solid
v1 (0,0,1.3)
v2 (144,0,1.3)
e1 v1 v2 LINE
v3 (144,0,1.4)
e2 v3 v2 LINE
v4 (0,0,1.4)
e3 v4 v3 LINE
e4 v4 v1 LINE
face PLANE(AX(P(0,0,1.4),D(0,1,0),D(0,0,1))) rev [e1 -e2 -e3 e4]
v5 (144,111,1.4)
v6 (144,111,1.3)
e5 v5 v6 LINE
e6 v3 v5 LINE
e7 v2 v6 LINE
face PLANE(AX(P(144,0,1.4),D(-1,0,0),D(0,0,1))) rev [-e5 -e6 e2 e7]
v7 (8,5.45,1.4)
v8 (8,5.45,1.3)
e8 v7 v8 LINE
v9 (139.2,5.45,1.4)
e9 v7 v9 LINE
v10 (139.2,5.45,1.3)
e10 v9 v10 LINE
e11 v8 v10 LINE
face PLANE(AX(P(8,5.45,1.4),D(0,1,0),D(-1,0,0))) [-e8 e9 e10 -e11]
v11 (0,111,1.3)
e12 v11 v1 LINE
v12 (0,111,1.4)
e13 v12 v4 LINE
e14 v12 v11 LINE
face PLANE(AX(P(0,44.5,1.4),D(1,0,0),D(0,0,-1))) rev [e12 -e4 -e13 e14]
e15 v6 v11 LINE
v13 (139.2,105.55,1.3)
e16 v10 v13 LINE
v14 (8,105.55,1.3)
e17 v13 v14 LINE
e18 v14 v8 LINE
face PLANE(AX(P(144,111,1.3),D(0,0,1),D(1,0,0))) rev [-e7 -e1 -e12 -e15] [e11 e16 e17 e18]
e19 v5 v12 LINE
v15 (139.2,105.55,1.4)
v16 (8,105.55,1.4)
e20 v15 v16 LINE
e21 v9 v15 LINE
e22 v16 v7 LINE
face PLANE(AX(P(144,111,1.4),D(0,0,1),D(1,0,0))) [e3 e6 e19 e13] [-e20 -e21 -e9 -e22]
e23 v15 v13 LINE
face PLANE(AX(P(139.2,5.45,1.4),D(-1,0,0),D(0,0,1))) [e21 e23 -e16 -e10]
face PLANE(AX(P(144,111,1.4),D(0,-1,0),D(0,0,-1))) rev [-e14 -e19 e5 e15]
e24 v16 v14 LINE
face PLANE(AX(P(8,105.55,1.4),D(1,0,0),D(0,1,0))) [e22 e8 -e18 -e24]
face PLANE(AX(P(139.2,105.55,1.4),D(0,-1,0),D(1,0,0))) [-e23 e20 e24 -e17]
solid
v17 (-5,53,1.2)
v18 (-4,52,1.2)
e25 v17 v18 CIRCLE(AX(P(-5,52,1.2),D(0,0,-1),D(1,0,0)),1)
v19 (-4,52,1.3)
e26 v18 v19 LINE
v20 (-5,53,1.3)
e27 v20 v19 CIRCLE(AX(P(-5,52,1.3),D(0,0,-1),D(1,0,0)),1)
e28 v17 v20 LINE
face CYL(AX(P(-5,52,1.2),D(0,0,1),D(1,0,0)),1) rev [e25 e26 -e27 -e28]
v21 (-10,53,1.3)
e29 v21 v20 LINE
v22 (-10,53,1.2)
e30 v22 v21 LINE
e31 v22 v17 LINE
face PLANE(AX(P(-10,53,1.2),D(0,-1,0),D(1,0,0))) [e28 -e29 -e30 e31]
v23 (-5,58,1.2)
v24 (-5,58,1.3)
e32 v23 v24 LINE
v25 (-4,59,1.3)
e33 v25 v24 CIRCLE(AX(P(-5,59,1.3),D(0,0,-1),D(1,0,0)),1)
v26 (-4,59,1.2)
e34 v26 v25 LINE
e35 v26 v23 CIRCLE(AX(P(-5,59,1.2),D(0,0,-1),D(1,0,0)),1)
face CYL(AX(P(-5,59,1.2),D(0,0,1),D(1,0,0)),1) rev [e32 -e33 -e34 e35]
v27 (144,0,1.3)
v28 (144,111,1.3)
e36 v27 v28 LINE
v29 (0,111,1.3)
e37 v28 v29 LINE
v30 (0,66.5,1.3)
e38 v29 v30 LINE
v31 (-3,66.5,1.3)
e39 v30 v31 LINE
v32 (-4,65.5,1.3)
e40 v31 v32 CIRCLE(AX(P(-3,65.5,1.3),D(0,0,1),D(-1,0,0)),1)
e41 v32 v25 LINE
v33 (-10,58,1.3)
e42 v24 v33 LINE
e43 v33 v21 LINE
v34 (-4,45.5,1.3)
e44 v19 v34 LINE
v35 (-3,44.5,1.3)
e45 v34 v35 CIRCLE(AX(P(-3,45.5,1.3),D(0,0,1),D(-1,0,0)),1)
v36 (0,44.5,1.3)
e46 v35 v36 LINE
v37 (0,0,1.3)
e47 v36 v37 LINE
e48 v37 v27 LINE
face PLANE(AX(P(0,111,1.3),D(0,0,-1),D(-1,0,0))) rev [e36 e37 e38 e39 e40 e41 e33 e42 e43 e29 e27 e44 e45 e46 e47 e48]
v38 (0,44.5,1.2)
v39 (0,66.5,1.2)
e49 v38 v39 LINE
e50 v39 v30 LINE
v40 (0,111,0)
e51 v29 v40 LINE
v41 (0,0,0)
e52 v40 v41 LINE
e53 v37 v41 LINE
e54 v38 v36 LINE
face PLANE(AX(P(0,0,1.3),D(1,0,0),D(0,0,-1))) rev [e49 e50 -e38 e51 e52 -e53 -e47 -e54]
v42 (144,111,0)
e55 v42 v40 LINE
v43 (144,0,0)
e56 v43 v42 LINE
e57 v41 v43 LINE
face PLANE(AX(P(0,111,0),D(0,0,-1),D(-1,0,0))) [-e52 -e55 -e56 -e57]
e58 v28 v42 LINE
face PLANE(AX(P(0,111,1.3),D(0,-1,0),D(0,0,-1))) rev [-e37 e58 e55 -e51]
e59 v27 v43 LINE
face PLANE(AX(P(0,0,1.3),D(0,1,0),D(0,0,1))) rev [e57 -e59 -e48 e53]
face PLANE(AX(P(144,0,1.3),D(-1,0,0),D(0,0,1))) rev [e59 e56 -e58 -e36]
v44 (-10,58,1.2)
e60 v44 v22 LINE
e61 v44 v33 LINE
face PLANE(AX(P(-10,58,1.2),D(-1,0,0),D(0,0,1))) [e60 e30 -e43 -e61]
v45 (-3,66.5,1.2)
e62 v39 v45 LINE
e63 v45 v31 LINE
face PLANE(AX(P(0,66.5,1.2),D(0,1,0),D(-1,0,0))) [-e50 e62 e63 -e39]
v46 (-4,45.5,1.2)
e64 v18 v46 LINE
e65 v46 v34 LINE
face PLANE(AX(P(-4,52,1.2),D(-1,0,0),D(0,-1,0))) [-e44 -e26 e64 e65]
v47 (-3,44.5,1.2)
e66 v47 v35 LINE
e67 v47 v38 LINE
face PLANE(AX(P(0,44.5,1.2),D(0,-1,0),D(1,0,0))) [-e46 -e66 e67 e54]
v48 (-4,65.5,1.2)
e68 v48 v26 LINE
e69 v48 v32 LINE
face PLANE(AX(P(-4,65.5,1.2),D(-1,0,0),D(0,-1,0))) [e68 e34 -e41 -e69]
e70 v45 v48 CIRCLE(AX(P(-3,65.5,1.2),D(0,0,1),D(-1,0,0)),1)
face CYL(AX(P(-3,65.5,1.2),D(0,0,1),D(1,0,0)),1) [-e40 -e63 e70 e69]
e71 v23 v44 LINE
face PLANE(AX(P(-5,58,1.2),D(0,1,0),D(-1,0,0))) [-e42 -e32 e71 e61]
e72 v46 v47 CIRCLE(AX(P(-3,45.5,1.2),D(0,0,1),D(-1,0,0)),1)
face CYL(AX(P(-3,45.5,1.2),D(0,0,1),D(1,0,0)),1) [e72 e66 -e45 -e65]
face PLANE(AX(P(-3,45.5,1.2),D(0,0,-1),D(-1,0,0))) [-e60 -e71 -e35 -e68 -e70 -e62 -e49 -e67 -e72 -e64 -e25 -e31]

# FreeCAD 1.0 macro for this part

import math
import FreeCAD as App
import Part
import Sketcher
from FreeCAD import Vector


def add_polygon(sketch, points):
    """Adds a closed chain of lines whose ends are joined by coincident constraints."""
    first, n = sketch.GeometryCount, len(points)
    for a, b in zip(points, points[1:] + points[:1]):
        sketch.addGeometry(Part.LineSegment(App.Vector(*a, 0), App.Vector(*b, 0)), False)
    for i in range(n):
        sketch.addConstraint(Sketcher.Constraint("Coincident", first + i, 2, first + (i + 1) % n, 1))

doc = App.newDocument("Part")
params = doc.addObject("Spreadsheet::Sheet", "Params")
for row, (alias, value) in enumerate([
    ("sketch1_width", "144 mm"),
    ("sketch1_height", "111 mm"),
    ("pad1_length", "1.3 mm"),
    ("sketch2_radius", "1 mm"),
    ("sketch2_width", "3 mm"),
    ("sketch2_width2", "5 mm"),
    ("sketch2_height", "22 mm"),
    ("pad2_length", "0.1 mm"),
    ("sketch3_width", "144 mm"),
    ("sketch3_height", "111 mm"),
    ("sketch3_width2", "131.2 mm"),
    ("sketch3_height2", "100.1 mm"),
    ("pad3_length", "0.1 mm"),
], start=1):
    params.set(f"A{row}", alias)
    params.set(f"B{row}", "=" + value)
    params.setAlias(f"B{row}", alias)

body = doc.addObject("PartDesign::Body", "Body")

# Sketch on XY plane
sketch1 = body.newObject("Sketcher::SketchObject", "Sketch")
sketch1.AttachmentSupport = (doc.getObject("XY_Plane"), [""])
sketch1.MapMode = "FlatFace"
add_polygon(sketch1, [(0, 111), (0, 0), (144, 0), (144, 111)])  # lines 0-3
sketch1.addConstraint(Sketcher.Constraint("Vertical", 0))
sketch1.addConstraint(Sketcher.Constraint("Horizontal", 1))
sketch1.addConstraint(Sketcher.Constraint("Vertical", 2))
sketch1.addConstraint(Sketcher.Constraint("Horizontal", 3))
sketch1.addConstraint(Sketcher.Constraint("Coincident", 0, 2, -1, 1))
sketch1.addConstraint(Sketcher.Constraint("DistanceX", 1, 1, 1, 2, 144.0))
sketch1.addConstraint(Sketcher.Constraint("DistanceY", 0, 2, 0, 1, 111.0))
sketch1.setExpression("Constraints[9]", "Params.sketch1_width")
sketch1.setExpression("Constraints[10]", "Params.sketch1_height")
pad1 = body.newObject("PartDesign::Pad", "Pad")
pad1.Profile = sketch1
pad1.setExpression("Length", "Params.pad1_length")

# Sketch on XY plane
sketch2 = body.newObject("Sketcher::SketchObject", "Sketch001")
sketch2.AttachmentSupport = (doc.getObject("XY_Plane"), [""])
sketch2.MapMode = "FlatFace"
sketch2.AttachmentOffset = App.Placement(Vector(0, 0, 1.3), App.Rotation())
sketch2.addGeometry(Part.LineSegment(Vector(0, 66.5, 0), Vector(-3, 66.5, 0)), False)
sketch2.addGeometry(Part.ArcOfCircle(Part.Circle(Vector(-3, 65.5, 0), Vector(0, 0, 1), 1), math.radians(90), math.radians(180)), False)
sketch2.addGeometry(Part.LineSegment(Vector(-4, 65.5, 0), Vector(-4, 59, 0)), False)
sketch2.addGeometry(Part.ArcOfCircle(Part.Circle(Vector(-5, 59, 0), Vector(0, 0, 1), 1), math.radians(-90), math.radians(0)), False)
sketch2.addGeometry(Part.LineSegment(Vector(-5, 58, 0), Vector(-10, 58, 0)), False)
sketch2.addGeometry(Part.LineSegment(Vector(-10, 58, 0), Vector(-10, 53, 0)), False)
sketch2.addGeometry(Part.LineSegment(Vector(-10, 53, 0), Vector(-5, 53, 0)), False)
sketch2.addGeometry(Part.ArcOfCircle(Part.Circle(Vector(-5, 52, 0), Vector(0, 0, 1), 1), math.radians(0), math.radians(90)), False)
sketch2.addGeometry(Part.LineSegment(Vector(-4, 52, 0), Vector(-4, 45.5, 0)), False)
sketch2.addGeometry(Part.ArcOfCircle(Part.Circle(Vector(-3, 45.5, 0), Vector(0, 0, 1), 1), math.radians(-180), math.radians(-90)), False)
sketch2.addGeometry(Part.LineSegment(Vector(-3, 44.5, 0), Vector(0, 44.5, 0)), False)
sketch2.addGeometry(Part.LineSegment(Vector(0, 44.5, 0), Vector(0, 66.5, 0)), False)
sketch2.addConstraint(Sketcher.Constraint("Tangent", 0, 2, 1, 1))
sketch2.addConstraint(Sketcher.Constraint("Tangent", 1, 2, 2, 1))
sketch2.addConstraint(Sketcher.Constraint("Tangent", 2, 2, 3, 2))
sketch2.addConstraint(Sketcher.Constraint("Tangent", 3, 1, 4, 1))
sketch2.addConstraint(Sketcher.Constraint("Coincident", 4, 2, 5, 1))
sketch2.addConstraint(Sketcher.Constraint("Coincident", 5, 2, 6, 1))
sketch2.addConstraint(Sketcher.Constraint("Tangent", 6, 2, 7, 2))
sketch2.addConstraint(Sketcher.Constraint("Tangent", 7, 1, 8, 1))
sketch2.addConstraint(Sketcher.Constraint("Tangent", 8, 2, 9, 1))
sketch2.addConstraint(Sketcher.Constraint("Tangent", 9, 2, 10, 1))
sketch2.addConstraint(Sketcher.Constraint("Coincident", 10, 2, 11, 1))
sketch2.addConstraint(Sketcher.Constraint("Coincident", 11, 2, 0, 1))
sketch2.addConstraint(Sketcher.Constraint("Horizontal", 0))
sketch2.addConstraint(Sketcher.Constraint("Vertical", 2))
sketch2.addConstraint(Sketcher.Constraint("Horizontal", 4))
sketch2.addConstraint(Sketcher.Constraint("Vertical", 5))
sketch2.addConstraint(Sketcher.Constraint("Horizontal", 6))
sketch2.addConstraint(Sketcher.Constraint("Vertical", 8))
sketch2.addConstraint(Sketcher.Constraint("Horizontal", 10))
sketch2.addConstraint(Sketcher.Constraint("Vertical", 11))
sketch2.addConstraint(Sketcher.Constraint("Equal", 1, 3))
sketch2.addConstraint(Sketcher.Constraint("Equal", 3, 7))
sketch2.addConstraint(Sketcher.Constraint("Equal", 7, 9))
sketch2.addConstraint(Sketcher.Constraint("PointOnObject", 10, 2, -2))
sketch2.addConstraint(Sketcher.Constraint("Vertical", 3, 3, 7, 3))
sketch2.addConstraint(Sketcher.Constraint("Equal", 6, 5))
sketch2.addConstraint(Sketcher.Constraint("Equal", 2, 8))
sketch2.addConstraint(Sketcher.Constraint("Radius", 1, 1.0))
sketch2.addConstraint(Sketcher.Constraint("DistanceX", 0, 2, 0, 1, 3.0))
sketch2.addConstraint(Sketcher.Constraint("DistanceX", 4, 2, 4, 1, 5.0))
sketch2.addConstraint(Sketcher.Constraint("DistanceY", 11, 1, 11, 2, 22.0))
sketch2.addConstraint(Sketcher.Constraint("DistanceY", -1, 1, 3, 3, 59.0))
sketch2.setExpression("Constraints[27]", "Params.sketch2_radius")
sketch2.setExpression("Constraints[28]", "Params.sketch2_width")
sketch2.setExpression("Constraints[29]", "Params.sketch2_width2")
sketch2.setExpression("Constraints[30]", "Params.sketch2_height")
pad2 = body.newObject("PartDesign::Pad", "Pad001")
pad2.Profile = sketch2
pad2.setExpression("Length", "Params.pad2_length")
pad2.Reversed = True
body2 = doc.addObject("PartDesign::Body", "Body001")

# Sketch on XY plane
sketch3 = body2.newObject("Sketcher::SketchObject", "Sketch002")
sketch3.AttachmentSupport = (doc.getObject("XY_Plane001"), [""])
sketch3.MapMode = "FlatFace"
sketch3.AttachmentOffset = App.Placement(Vector(0, 0, 1.3), App.Rotation())
add_polygon(sketch3, [(144, 111), (0, 111), (0, 0), (144, 0)])  # lines 0-3
add_polygon(sketch3, [(139.2, 5.45), (8, 5.45), (8, 105.55), (139.2, 105.55)])  # lines 4-7
sketch3.addConstraint(Sketcher.Constraint("Horizontal", 0))
sketch3.addConstraint(Sketcher.Constraint("Vertical", 1))
sketch3.addConstraint(Sketcher.Constraint("Horizontal", 2))
sketch3.addConstraint(Sketcher.Constraint("Vertical", 3))
sketch3.addConstraint(Sketcher.Constraint("Horizontal", 4))
sketch3.addConstraint(Sketcher.Constraint("Vertical", 5))
sketch3.addConstraint(Sketcher.Constraint("Horizontal", 6))
sketch3.addConstraint(Sketcher.Constraint("Vertical", 7))
sketch3.addConstraint(Sketcher.Constraint("Coincident", 1, 2, -1, 1))
sketch3.addConstraint(Sketcher.Constraint("DistanceX", 0, 2, 0, 1, 144.0))
sketch3.addConstraint(Sketcher.Constraint("DistanceY", 1, 2, 1, 1, 111.0))
sketch3.addConstraint(Sketcher.Constraint("DistanceX", 4, 2, 4, 1, 131.2))
sketch3.addConstraint(Sketcher.Constraint("DistanceY", 5, 1, 5, 2, 100.1))
sketch3.addConstraint(Sketcher.Constraint("DistanceX", -1, 1, 4, 2, 8.0))
sketch3.addConstraint(Sketcher.Constraint("DistanceY", -1, 1, 4, 2, 5.45))
sketch3.setExpression("Constraints[17]", "Params.sketch3_width")
sketch3.setExpression("Constraints[18]", "Params.sketch3_height")
sketch3.setExpression("Constraints[19]", "Params.sketch3_width2")
sketch3.setExpression("Constraints[20]", "Params.sketch3_height2")
pad3 = body2.newObject("PartDesign::Pad", "Pad002")
pad3.Profile = sketch3
pad3.setExpression("Length", "Params.pad3_length")

doc.recompute()
